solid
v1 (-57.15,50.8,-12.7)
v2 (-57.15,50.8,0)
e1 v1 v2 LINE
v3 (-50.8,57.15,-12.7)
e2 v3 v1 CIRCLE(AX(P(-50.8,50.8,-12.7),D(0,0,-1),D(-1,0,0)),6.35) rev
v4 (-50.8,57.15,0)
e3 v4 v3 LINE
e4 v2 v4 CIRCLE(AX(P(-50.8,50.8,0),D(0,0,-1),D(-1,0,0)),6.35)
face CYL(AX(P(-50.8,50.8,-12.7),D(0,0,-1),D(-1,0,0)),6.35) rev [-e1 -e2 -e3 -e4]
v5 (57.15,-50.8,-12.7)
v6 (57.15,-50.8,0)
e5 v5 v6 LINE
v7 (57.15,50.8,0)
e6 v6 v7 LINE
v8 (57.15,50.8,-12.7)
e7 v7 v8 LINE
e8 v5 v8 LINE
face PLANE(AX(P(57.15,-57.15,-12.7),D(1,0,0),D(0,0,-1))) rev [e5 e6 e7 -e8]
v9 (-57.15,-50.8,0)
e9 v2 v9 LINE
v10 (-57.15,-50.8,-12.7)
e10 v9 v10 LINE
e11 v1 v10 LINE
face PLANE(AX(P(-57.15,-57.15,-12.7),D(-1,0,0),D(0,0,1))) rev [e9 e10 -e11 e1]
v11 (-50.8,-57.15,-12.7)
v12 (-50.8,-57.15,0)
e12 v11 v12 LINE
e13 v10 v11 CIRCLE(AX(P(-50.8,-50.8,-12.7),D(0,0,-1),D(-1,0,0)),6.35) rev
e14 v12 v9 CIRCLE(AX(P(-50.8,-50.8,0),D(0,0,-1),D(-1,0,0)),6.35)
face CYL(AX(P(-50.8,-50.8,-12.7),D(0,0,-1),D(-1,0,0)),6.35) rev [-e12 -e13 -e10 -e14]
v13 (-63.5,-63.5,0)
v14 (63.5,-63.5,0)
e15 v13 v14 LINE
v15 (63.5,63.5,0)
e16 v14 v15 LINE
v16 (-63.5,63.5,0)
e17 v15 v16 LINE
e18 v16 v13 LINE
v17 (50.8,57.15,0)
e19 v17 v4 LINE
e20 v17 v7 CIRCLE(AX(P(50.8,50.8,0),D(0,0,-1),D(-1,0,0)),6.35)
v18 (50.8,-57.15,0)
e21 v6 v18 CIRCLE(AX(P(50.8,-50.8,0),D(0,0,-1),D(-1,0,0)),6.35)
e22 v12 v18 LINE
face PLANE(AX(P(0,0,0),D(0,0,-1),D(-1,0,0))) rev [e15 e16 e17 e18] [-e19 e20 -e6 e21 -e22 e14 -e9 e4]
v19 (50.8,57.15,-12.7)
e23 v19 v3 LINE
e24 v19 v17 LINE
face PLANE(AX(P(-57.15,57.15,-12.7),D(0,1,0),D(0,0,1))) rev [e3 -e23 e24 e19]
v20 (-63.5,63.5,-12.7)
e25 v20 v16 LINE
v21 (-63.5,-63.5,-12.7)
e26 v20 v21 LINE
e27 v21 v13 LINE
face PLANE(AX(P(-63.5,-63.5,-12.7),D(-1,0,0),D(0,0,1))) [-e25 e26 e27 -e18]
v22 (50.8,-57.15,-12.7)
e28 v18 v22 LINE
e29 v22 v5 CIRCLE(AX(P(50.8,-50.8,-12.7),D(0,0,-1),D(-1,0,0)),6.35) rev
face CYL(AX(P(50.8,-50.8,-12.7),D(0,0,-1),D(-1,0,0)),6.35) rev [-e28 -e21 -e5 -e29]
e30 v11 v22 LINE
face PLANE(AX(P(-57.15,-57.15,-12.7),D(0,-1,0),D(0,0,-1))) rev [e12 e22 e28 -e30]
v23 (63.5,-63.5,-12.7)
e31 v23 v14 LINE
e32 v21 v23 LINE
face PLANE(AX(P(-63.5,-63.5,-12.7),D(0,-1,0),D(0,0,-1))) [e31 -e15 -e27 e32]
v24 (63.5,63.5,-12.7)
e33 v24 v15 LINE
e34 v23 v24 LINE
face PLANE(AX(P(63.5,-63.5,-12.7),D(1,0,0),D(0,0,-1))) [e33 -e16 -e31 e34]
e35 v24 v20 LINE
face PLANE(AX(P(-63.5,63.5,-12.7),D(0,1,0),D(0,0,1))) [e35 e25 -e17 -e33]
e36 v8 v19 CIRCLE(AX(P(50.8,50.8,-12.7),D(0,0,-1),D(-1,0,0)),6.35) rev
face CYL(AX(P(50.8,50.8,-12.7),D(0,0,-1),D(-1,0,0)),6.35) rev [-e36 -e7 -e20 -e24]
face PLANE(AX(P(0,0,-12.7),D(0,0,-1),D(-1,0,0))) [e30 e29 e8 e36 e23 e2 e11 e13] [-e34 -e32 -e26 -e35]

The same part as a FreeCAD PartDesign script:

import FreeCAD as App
import Part
import Sketcher

V = App.Vector
Q = App.Units.Quantity


def edges_at(feature, points):
    """Names of the edges that pass closest to the given points."""
    edges = feature.Shape.Edges
    near = lambda p: min(range(len(edges)), key=lambda i: edges[i].distToShape(Part.Vertex(*p))[0])
    return sorted({f"Edge{near(p) + 1}" for p in points})


def add_polygon(sketch, points):
    """Adds a closed chain of lines whose ends are joined by coincident constraints."""
    first, n = sketch.GeometryCount, len(points)
    for a, b in zip(points, points[1:] + points[:1]):
        sketch.addGeometry(Part.LineSegment(App.Vector(*a, 0), App.Vector(*b, 0)), False)
    for i in range(n):
        sketch.addConstraint(Sketcher.Constraint("Coincident", first + i, 2, first + (i + 1) % n, 1))

doc = App.newDocument("Part")
params = doc.addObject("Spreadsheet::Sheet", "Params")
for row, (alias, value) in enumerate([
    ("sketch1_width", "5 in"),
    ("sketch1_width2", "4.5 in"),
    ("pad1_length", "0.5 in"),
    ("fillet_radius", "0.25 in"),
], start=1):
    params.set(f"A{row}", alias)
    params.set(f"B{row}", "=" + value)
    params.setAlias(f"B{row}", alias)

body = doc.addObject("PartDesign::Body", "Body")

# Sketch on XY plane
sketch1 = doc.addObject("Sketcher::SketchObject", "Sketch")
body.addObject(sketch1)
sketch1.AttachmentSupport = (doc.XY_Plane, [""])
sketch1.MapMode = "FlatFace"
add_polygon(sketch1, [(-63.5, 63.5), (-63.5, -63.5), (63.5, -63.5), (63.5, 63.5)])  # lines 0-3
add_polygon(sketch1, [(57.15, -57.15), (-57.15, -57.15), (-57.15, 57.15), (57.15, 57.15)])  # lines 4-7
sketch1.addConstraint(Sketcher.Constraint("Vertical", 0))
sketch1.addConstraint(Sketcher.Constraint("Horizontal", 1))
sketch1.addConstraint(Sketcher.Constraint("Vertical", 2))
sketch1.addConstraint(Sketcher.Constraint("Horizontal", 3))
sketch1.addConstraint(Sketcher.Constraint("Horizontal", 4))
sketch1.addConstraint(Sketcher.Constraint("Vertical", 5))
sketch1.addConstraint(Sketcher.Constraint("Horizontal", 6))
sketch1.addConstraint(Sketcher.Constraint("Vertical", 7))
sketch1.addConstraint(Sketcher.Constraint("Symmetric", 0, 2, 2, 2, -1, 1))
sketch1.addConstraint(Sketcher.Constraint("Symmetric", 4, 2, 6, 2, -1, 1))
sketch1.addConstraint(Sketcher.Constraint("Equal", 3, 0))
sketch1.addConstraint(Sketcher.Constraint("Equal", 6, 5))
sketch1.addConstraint(Sketcher.Constraint("DistanceX", 1, 1, 1, 2, Q("5 in")))
sketch1.addConstraint(Sketcher.Constraint("DistanceX", 4, 2, 4, 1, Q("4.5 in")))
sketch1.setExpression("Constraints[20]", "Params.sketch1_width")
sketch1.setExpression("Constraints[21]", "Params.sketch1_width2")
pad1 = doc.addObject("PartDesign::Pad", "Pad")
body.addObject(pad1)
pad1.Profile = sketch1
pad1.setExpression("Length", "Params.pad1_length")
pad1.Reversed = True
doc.recompute()

fillet = doc.addObject("PartDesign::Fillet", "Fillet")
body.addObject(fillet)
fillet.Base = (pad1, edges_at(pad1, [
    (57.15, 57.15, -6.35),
    (57.15, -57.15, -6.35),
    (-57.15, -57.15, -6.35),
    (-57.15, 57.15, -6.35),
]))
fillet.setExpression("Radius", "Params.fillet_radius")

doc.recompute()
